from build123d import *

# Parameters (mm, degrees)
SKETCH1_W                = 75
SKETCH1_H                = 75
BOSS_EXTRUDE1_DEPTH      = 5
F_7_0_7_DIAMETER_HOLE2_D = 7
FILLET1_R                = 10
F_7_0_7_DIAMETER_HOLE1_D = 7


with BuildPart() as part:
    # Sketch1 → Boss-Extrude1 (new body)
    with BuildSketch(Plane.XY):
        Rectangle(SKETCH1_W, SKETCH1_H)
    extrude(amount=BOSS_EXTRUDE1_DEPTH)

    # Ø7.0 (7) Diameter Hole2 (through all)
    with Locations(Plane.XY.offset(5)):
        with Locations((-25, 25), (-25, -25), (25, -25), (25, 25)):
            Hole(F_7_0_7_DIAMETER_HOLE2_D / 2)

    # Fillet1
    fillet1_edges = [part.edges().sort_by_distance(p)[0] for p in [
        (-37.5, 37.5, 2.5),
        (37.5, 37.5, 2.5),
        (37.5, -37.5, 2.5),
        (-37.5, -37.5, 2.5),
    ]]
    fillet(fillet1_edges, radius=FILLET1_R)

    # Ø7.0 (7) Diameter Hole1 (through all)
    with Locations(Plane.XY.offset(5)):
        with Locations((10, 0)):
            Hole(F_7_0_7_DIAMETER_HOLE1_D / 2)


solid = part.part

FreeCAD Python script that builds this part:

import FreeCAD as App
import Part
import Sketcher

V = App.Vector


def edges_at(feature, points):
    """Names of the edges that pass closest to the given points."""
    edges = feature.Shape.Edges
    near = lambda p: min(range(len(edges)), key=lambda i: edges[i].distToShape(Part.Vertex(*p))[0])
    return sorted({f"Edge{near(p) + 1}" for p in points})

doc = App.newDocument("Part")
body = doc.addObject("PartDesign::Body", "Body")

# Sketch on XY plane
sketch1 = body.newObject("Sketcher::SketchObject", "Sketch")
sketch1.AttachmentSupport = (doc.getObject("XY_Plane"), [""])
sketch1.MapMode = "FlatFace"
sketch1.addGeometry(Part.LineSegment(V(-38, 38, 0), V(-38, -38, 0)), False)
sketch1.addGeometry(Part.LineSegment(V(-38, -38, 0), V(38, -38, 0)), False)
sketch1.addGeometry(Part.LineSegment(V(38, -38, 0), V(38, 38, 0)), False)
sketch1.addGeometry(Part.LineSegment(V(38, 38, 0), V(-38, 38, 0)), False)
sketch1.addConstraint(Sketcher.Constraint("Coincident", 0, 2, 1, 1))
sketch1.addConstraint(Sketcher.Constraint("Coincident", 1, 2, 2, 1))
sketch1.addConstraint(Sketcher.Constraint("Coincident", 2, 2, 3, 1))
sketch1.addConstraint(Sketcher.Constraint("Coincident", 3, 2, 0, 1))
sketch1.addConstraint(Sketcher.Constraint("Vertical", 0))
sketch1.addConstraint(Sketcher.Constraint("Horizontal", 1))
sketch1.addConstraint(Sketcher.Constraint("Vertical", 2))
sketch1.addConstraint(Sketcher.Constraint("Horizontal", 3))
sketch1.addConstraint(Sketcher.Constraint("Symmetric", 0, 2, 2, 2, -1, 1))
sketch1.addConstraint(Sketcher.Constraint("Equal", 3, 0))
sketch1.addConstraint(Sketcher.Constraint("DistanceX", 1, 1, 1, 2, 75.0))
pad1 = body.newObject("PartDesign::Pad", "Pad")
pad1.Profile = sketch1
pad1.Length = 5

# Sketch on XY plane
sketch2 = body.newObject("Sketcher::SketchObject", "Sketch001")
sketch2.AttachmentSupport = (doc.getObject("XY_Plane"), [""])
sketch2.MapMode = "FlatFace"
sketch2.AttachmentOffset = App.Placement(V(0, 0, 5), App.Rotation())
sketch2.addGeometry(Part.Circle(V(-25, 25, 0), V(0, 0, 1), 3.5), False)
sketch2.addGeometry(Part.Circle(V(-25, -25, 0), V(0, 0, 1), 3.5), False)
sketch2.addGeometry(Part.Circle(V(25, -25, 0), V(0, 0, 1), 3.5), False)
sketch2.addGeometry(Part.Circle(V(25, 25, 0), V(0, 0, 1), 3.5), False)
sketch2.addConstraint(Sketcher.Constraint("Equal", 0, 1))
sketch2.addConstraint(Sketcher.Constraint("Equal", 1, 2))
sketch2.addConstraint(Sketcher.Constraint("Equal", 2, 3))
sketch2.addConstraint(Sketcher.Constraint("Symmetric", 0, 3, 2, 3, -1, 1))
sketch2.addConstraint(Sketcher.Constraint("Symmetric", 1, 3, 3, 3, -1, 1))
sketch2.addConstraint(Sketcher.Constraint("Symmetric", 1, 3, 2, 3, -2))
sketch2.addConstraint(Sketcher.Constraint("Diameter", 0, 7.0))
sketch2.addConstraint(Sketcher.Constraint("DistanceX", 0, 3, -1, 1, 25.0))
sketch2.addConstraint(Sketcher.Constraint("DistanceY", -1, 1, 0, 3, 25.0))
doc.recompute()
hole = body.newObject("PartDesign::Hole", "Hole")
hole.Profile = sketch2
hole.ThreadType = "None"
hole.Diameter = 7
hole.DepthType = "ThroughAll"
doc.recompute()

fillet = body.newObject("PartDesign::Fillet", "Fillet")
fillet.Base = (hole, edges_at(hole, [
    (-37.5, 37.5, 2.5),
    (37.5, 37.5, 2.5),
    (37.5, -37.5, 2.5),
    (-37.5, -37.5, 2.5),
]))
fillet.Radius = 10

# Sketch on XY plane
sketch3 = body.newObject("Sketcher::SketchObject", "Sketch002")
sketch3.AttachmentSupport = (doc.getObject("XY_Plane"), [""])
sketch3.MapMode = "FlatFace"
sketch3.AttachmentOffset = App.Placement(V(0, 0, 5), App.Rotation())
sketch3.addGeometry(Part.Circle(V(10, 0, 0), V(0, 0, 1), 3.5), False)
sketch3.addConstraint(Sketcher.Constraint("PointOnObject", 0, 3, -1))
sketch3.addConstraint(Sketcher.Constraint("Diameter", 0, 7.0))
sketch3.addConstraint(Sketcher.Constraint("DistanceX", -1, 1, 0, 3, 10.0))
doc.recompute()
hole2 = body.newObject("PartDesign::Hole", "Hole001")
hole2.Profile = sketch3
hole2.ThreadType = "None"
hole2.Diameter = 7
hole2.DepthType = "ThroughAll"

doc.recompute()
